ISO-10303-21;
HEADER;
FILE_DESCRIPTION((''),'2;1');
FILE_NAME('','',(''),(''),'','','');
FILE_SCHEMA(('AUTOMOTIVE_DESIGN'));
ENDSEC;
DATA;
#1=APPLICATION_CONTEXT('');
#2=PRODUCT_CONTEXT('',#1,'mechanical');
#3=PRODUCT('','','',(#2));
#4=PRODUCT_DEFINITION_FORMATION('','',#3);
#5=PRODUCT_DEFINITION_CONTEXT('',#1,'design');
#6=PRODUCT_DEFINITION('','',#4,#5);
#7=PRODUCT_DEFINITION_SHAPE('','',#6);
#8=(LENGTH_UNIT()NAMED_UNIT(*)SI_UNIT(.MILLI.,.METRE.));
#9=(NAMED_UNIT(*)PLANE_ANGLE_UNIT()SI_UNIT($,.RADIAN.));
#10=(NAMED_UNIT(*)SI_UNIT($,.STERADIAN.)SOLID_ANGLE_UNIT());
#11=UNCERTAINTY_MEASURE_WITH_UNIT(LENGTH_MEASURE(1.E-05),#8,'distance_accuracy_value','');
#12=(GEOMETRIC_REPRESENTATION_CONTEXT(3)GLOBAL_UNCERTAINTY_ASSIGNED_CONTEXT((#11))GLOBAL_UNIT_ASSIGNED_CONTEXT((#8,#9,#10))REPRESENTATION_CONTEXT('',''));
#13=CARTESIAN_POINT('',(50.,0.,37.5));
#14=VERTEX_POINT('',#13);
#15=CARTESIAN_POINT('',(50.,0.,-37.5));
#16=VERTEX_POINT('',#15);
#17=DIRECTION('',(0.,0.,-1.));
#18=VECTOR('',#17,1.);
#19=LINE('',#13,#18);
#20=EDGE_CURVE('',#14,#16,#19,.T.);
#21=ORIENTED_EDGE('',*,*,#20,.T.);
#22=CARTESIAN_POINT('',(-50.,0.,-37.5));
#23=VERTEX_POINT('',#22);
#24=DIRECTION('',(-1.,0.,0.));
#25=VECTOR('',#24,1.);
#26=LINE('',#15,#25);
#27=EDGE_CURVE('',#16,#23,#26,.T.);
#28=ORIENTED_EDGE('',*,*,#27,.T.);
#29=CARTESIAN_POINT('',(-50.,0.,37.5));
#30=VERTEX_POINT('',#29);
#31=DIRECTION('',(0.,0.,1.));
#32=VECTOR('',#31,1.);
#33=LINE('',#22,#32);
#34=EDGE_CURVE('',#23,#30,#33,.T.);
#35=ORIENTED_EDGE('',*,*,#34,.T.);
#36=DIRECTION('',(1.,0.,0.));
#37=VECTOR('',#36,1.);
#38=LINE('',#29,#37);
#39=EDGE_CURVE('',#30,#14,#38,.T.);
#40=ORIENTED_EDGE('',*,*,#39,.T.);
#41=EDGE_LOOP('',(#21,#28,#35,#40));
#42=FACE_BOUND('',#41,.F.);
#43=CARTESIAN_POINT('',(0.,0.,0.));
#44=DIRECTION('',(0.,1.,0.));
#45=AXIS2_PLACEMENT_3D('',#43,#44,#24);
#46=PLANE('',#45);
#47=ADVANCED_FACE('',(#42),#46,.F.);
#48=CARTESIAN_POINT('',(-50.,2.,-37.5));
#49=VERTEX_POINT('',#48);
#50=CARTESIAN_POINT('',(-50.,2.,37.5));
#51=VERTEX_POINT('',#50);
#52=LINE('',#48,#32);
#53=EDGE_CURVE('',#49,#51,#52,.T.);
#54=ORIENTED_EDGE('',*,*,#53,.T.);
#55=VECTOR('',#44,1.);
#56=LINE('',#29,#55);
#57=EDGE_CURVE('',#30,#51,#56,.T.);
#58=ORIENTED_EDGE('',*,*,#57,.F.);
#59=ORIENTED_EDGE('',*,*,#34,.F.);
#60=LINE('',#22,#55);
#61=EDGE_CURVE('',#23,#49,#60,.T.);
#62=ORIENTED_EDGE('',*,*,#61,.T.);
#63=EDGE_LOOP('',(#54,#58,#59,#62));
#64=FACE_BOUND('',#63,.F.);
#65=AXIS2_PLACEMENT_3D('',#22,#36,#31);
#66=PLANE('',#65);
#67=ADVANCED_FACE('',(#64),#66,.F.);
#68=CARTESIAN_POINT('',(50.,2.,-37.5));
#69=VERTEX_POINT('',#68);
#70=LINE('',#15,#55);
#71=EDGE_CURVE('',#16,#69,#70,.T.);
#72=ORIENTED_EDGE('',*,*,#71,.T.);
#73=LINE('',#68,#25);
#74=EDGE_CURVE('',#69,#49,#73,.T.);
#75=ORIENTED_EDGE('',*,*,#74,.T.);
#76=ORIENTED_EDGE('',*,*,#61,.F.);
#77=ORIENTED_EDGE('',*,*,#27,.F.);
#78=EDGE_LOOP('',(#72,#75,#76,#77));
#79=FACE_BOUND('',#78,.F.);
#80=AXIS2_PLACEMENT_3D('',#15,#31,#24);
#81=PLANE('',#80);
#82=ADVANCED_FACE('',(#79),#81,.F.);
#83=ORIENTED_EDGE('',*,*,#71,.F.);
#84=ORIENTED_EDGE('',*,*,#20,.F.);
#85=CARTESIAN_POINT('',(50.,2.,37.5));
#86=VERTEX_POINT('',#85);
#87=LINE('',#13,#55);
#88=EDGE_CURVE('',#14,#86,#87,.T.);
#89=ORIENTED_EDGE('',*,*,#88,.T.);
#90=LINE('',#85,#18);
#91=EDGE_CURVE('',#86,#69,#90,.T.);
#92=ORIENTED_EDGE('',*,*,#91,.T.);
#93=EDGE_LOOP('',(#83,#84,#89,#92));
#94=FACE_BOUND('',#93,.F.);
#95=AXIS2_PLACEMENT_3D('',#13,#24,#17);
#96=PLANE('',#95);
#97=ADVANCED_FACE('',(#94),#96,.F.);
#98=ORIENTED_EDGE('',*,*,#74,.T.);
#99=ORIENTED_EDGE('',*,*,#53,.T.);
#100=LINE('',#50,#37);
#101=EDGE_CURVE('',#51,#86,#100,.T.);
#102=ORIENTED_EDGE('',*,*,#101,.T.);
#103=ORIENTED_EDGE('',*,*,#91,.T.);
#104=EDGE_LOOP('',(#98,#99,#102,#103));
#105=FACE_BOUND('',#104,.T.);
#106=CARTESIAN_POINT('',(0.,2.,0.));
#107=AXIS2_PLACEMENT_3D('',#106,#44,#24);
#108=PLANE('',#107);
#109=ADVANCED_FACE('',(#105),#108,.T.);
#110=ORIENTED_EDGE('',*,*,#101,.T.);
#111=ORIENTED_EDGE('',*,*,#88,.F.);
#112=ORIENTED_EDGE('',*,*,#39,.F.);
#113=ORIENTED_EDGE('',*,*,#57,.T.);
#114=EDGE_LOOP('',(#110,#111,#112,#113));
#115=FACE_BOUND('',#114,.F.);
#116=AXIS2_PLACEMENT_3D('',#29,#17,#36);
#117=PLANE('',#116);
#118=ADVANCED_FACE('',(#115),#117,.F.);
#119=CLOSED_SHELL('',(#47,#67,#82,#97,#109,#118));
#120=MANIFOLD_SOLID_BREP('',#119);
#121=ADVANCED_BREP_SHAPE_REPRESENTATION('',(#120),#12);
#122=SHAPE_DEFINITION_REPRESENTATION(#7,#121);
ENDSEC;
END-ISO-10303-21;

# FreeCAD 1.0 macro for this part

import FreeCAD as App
import Part
import Sketcher
Q = App.Units.Quantity

doc = App.newDocument("Part")
body = doc.addObject("PartDesign::Body", "Body")

sketch1 = body.newObject("Sketcher::SketchObject", "Sketch")
sketch1.AttachmentSupport = (doc.getObject("XZ_Plane"), [""])
sketch1.MapMode = "FlatFace"
sketch1.addGeometry(Part.LineSegment(App.Vector(-50, -38, 0), App.Vector(-50, 38, 0)), False)
sketch1.addGeometry(Part.LineSegment(App.Vector(-50, 38, 0), App.Vector(50, 38, 0)), False)
sketch1.addGeometry(Part.LineSegment(App.Vector(50, 38, 0), App.Vector(50, -38, 0)), False)
sketch1.addGeometry(Part.LineSegment(App.Vector(50, -38, 0), App.Vector(-50, -38, 0)), False)
sketch1.addConstraint(Sketcher.Constraint("Coincident", 0, 2, 1, 1))
sketch1.addConstraint(Sketcher.Constraint("Coincident", 1, 2, 2, 1))
sketch1.addConstraint(Sketcher.Constraint("Coincident", 2, 2, 3, 1))
sketch1.addConstraint(Sketcher.Constraint("Coincident", 3, 2, 0, 1))
sketch1.addConstraint(Sketcher.Constraint("Vertical", 0))
sketch1.addConstraint(Sketcher.Constraint("Horizontal", 1))
sketch1.addConstraint(Sketcher.Constraint("Vertical", 2))
sketch1.addConstraint(Sketcher.Constraint("Horizontal", 3))
sketch1.addConstraint(Sketcher.Constraint("Symmetric", 0, 2, 2, 2, -1, 1))
sketch1.addConstraint(Sketcher.Constraint("DistanceX", 1, 1, 1, 2, Q("100 mm")))
sketch1.addConstraint(Sketcher.Constraint("DistanceY", 0, 1, 0, 2, Q("75 mm")))
pad1 = body.newObject("PartDesign::Pad", "Pad")
pad1.Profile = sketch1
pad1.Length = 2
pad1.Reversed = True

doc.recompute()
